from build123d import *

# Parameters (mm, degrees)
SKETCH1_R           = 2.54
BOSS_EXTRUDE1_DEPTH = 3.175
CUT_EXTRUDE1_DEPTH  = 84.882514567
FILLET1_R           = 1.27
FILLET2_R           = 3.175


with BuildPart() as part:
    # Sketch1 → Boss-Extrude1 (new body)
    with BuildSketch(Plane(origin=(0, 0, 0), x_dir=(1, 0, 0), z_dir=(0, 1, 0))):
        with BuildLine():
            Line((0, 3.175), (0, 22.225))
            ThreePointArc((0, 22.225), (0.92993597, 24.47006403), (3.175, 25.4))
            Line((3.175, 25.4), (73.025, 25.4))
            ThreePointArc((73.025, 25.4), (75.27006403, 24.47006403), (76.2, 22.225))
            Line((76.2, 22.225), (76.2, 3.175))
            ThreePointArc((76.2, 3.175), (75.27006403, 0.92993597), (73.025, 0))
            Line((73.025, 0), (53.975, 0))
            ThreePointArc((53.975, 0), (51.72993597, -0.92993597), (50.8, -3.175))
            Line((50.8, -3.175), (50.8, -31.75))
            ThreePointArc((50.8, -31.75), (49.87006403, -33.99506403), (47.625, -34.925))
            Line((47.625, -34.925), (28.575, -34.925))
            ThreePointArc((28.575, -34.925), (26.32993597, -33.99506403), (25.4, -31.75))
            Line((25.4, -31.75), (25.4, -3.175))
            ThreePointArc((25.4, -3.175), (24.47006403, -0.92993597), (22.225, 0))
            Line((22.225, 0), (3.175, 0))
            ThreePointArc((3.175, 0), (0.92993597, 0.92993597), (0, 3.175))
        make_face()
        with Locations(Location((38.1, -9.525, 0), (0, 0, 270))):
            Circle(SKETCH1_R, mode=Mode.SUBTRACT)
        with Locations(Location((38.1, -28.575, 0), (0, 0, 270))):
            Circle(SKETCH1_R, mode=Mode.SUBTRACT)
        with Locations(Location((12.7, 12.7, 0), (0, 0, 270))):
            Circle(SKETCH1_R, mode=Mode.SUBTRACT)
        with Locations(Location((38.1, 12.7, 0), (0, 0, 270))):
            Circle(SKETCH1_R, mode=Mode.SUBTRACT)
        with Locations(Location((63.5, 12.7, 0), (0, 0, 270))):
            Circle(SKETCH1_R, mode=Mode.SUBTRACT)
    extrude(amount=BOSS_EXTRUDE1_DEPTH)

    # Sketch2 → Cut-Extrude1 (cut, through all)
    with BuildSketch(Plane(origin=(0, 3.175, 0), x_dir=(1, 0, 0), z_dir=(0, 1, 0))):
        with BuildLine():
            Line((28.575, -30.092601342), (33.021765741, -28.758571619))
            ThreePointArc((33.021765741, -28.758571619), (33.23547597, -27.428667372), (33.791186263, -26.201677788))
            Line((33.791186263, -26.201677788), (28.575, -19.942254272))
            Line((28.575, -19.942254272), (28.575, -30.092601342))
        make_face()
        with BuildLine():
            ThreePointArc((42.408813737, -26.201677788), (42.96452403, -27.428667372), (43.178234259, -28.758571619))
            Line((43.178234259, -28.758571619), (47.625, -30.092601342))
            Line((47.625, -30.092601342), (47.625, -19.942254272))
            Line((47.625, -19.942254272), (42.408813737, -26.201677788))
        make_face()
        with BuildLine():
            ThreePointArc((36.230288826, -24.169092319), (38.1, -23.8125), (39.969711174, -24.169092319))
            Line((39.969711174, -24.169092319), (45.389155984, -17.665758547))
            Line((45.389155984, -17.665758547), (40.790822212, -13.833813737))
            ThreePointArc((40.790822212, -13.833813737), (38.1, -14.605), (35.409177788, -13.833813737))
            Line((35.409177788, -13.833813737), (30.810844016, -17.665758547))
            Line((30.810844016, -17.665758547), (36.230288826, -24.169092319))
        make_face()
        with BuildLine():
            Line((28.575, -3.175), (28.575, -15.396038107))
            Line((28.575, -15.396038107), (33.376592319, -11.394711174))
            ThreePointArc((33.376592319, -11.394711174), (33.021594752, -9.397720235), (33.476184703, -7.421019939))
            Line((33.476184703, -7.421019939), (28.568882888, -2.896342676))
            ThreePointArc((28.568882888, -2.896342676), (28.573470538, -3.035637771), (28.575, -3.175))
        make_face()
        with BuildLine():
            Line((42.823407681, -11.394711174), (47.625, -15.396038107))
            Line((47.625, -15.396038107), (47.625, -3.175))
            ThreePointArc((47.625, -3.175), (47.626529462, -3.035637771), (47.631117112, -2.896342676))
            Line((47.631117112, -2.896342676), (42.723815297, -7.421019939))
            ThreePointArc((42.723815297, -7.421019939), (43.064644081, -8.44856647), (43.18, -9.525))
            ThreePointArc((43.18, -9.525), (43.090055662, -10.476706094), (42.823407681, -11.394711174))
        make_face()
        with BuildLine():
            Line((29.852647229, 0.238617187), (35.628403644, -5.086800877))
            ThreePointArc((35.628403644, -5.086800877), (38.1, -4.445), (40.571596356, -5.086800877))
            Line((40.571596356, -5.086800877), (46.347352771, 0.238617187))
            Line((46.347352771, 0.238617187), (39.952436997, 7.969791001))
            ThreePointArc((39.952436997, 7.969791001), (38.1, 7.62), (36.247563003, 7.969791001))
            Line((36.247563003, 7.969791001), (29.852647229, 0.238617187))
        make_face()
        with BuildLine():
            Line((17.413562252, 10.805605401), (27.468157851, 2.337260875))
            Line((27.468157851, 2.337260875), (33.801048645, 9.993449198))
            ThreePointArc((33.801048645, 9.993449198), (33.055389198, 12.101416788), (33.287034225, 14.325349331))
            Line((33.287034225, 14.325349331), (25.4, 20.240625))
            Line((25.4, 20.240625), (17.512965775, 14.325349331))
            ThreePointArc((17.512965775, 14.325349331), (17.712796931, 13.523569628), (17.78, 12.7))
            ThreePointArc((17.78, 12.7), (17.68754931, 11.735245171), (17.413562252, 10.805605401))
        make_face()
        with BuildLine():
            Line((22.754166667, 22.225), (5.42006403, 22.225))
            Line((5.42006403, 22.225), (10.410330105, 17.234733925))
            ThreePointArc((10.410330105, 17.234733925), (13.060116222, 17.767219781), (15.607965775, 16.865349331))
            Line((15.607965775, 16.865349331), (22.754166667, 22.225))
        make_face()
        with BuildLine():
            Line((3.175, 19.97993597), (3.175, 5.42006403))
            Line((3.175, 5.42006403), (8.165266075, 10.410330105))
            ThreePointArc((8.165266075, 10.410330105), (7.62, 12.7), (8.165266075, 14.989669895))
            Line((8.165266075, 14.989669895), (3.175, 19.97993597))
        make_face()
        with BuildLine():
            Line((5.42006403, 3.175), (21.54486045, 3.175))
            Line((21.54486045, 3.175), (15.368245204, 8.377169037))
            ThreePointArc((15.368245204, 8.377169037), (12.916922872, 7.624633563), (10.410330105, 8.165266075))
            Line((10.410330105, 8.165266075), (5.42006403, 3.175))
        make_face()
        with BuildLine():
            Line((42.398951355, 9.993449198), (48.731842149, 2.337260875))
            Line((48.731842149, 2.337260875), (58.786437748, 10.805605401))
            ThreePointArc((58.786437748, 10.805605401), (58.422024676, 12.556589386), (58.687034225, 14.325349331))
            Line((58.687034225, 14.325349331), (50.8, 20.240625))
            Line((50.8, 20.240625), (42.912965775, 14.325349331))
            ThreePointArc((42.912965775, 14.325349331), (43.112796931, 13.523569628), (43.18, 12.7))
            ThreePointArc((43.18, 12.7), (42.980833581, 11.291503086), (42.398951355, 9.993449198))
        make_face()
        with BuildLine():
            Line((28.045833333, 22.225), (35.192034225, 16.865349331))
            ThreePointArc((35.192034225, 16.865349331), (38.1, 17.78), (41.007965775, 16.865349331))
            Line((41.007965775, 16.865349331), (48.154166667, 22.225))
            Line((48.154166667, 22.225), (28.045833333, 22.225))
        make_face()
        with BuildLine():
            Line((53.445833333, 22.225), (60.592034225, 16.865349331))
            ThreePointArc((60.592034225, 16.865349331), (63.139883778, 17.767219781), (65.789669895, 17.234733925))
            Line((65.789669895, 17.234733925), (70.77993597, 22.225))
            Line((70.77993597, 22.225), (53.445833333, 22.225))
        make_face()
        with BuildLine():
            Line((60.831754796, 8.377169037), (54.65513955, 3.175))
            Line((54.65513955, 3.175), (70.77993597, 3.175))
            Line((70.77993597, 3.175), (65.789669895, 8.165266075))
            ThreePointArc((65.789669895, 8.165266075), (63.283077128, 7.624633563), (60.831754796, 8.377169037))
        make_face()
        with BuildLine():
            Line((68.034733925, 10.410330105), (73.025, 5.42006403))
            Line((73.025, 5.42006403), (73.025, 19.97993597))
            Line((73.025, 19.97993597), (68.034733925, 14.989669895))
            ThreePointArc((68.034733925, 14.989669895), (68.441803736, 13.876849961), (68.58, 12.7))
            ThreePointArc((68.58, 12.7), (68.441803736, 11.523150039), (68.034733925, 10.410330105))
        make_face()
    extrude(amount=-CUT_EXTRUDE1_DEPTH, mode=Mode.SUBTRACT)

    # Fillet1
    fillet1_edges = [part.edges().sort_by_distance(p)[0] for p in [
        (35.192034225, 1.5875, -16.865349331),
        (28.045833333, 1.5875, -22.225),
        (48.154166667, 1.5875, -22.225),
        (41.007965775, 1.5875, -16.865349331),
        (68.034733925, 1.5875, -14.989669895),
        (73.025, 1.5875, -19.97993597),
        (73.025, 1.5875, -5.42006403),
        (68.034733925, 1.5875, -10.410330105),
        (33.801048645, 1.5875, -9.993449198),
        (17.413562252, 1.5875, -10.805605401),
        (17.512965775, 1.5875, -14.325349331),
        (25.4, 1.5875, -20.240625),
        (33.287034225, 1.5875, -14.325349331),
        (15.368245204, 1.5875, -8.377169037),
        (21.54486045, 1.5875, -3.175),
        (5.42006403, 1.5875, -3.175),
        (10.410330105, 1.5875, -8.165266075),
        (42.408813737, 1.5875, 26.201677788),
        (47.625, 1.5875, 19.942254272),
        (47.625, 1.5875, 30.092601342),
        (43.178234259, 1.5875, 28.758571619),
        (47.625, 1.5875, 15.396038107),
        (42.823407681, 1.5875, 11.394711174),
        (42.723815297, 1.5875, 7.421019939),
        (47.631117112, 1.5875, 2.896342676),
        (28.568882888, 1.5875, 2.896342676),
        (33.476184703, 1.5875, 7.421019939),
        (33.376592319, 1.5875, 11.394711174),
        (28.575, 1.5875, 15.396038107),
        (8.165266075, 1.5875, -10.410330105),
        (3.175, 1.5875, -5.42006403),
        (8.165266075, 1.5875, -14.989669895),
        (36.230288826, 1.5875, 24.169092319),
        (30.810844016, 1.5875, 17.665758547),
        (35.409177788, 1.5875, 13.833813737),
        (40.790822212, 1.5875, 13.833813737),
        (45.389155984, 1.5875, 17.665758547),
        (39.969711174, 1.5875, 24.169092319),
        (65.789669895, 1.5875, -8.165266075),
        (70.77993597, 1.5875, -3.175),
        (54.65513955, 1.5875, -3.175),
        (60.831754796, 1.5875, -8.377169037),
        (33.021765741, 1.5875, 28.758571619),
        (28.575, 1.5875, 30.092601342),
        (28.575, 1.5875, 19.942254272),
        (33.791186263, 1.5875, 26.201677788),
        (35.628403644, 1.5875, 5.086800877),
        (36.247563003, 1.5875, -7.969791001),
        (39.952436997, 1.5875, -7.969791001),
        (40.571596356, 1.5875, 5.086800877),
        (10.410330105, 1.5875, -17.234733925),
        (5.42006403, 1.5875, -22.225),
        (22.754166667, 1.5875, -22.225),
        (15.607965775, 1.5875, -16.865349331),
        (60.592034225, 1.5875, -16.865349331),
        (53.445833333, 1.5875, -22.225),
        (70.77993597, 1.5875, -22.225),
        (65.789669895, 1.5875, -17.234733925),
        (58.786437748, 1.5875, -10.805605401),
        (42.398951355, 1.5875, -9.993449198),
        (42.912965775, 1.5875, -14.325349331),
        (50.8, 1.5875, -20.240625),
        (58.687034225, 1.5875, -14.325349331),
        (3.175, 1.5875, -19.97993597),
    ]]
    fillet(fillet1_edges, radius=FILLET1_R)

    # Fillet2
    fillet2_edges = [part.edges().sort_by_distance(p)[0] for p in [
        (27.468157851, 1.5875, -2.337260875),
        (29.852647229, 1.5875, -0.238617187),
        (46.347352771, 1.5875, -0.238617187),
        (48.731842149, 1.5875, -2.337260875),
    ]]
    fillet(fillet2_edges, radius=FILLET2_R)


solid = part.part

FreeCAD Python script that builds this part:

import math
import FreeCAD as App
import Part
import Sketcher
Q = App.Units.Quantity


def edges_at(feature, points):
    """Names of the edges that pass closest to the given points."""
    edges = feature.Shape.Edges
    near = lambda p: min(range(len(edges)), key=lambda i: edges[i].distToShape(Part.Vertex(*p))[0])
    return sorted({f"Edge{near(p) + 1}" for p in points})

doc = App.newDocument("Part")
body = doc.addObject("PartDesign::Body", "Body")

# Sketch on XZ plane
sketch1 = body.newObject("Sketcher::SketchObject", "Sketch")
sketch1.AttachmentSupport = (doc.getObject("XZ_Plane"), [""])
sketch1.MapMode = "FlatFace"
sketch1.addGeometry([
    Part.LineSegment(App.Vector(0, -22.2, 0), App.Vector(0, -3.2, 0)),  # 0
    Part.ArcOfCircle(Part.Circle(App.Vector(3.2, -3.2, 0), App.Vector(0, 0, 1), 3.2), math.radians(90), math.radians(180)),  # 1
    Part.LineSegment(App.Vector(3.2, 0, 0), App.Vector(22.2, 0, 0)),  # 2
    Part.ArcOfCircle(Part.Circle(App.Vector(22.2, 3.2, 0), App.Vector(0, 0, 1), 3.2), math.radians(-90), math.radians(0)),  # 3
    Part.LineSegment(App.Vector(25.4, 3.2, 0), App.Vector(25.4, 31.8, 0)),  # 4
    Part.ArcOfCircle(Part.Circle(App.Vector(28.6, 31.7, 0), App.Vector(0, 0, 1), 3.2), math.radians(90), math.radians(180)),  # 5
    Part.LineSegment(App.Vector(28.6, 34.9, 0), App.Vector(47.6, 34.9, 0)),  # 6
    Part.ArcOfCircle(Part.Circle(App.Vector(47.6, 31.7, 0), App.Vector(0, 0, 1), 3.2), math.radians(0), math.radians(90)),  # 7
    Part.LineSegment(App.Vector(50.8, 31.8, 0), App.Vector(50.8, 3.2, 0)),  # 8
    Part.ArcOfCircle(Part.Circle(App.Vector(54, 3.2, 0), App.Vector(0, 0, 1), 3.2), math.radians(-180), math.radians(-90)),  # 9
    Part.LineSegment(App.Vector(54, 0, 0), App.Vector(73, 0, 0)),  # 10
    Part.ArcOfCircle(Part.Circle(App.Vector(73, -3.2, 0), App.Vector(0, 0, 1), 3.2), math.radians(0), math.radians(90)),  # 11
    Part.LineSegment(App.Vector(76.2, -3.2, 0), App.Vector(76.2, -22.2, 0)),  # 12
    Part.ArcOfCircle(Part.Circle(App.Vector(73, -22.2, 0), App.Vector(0, 0, 1), 3.2), math.radians(-90), math.radians(0)),  # 13
    Part.LineSegment(App.Vector(73, -25.4, 0), App.Vector(3.2, -25.4, 0)),  # 14
    Part.ArcOfCircle(Part.Circle(App.Vector(3.2, -22.2, 0), App.Vector(0, 0, 1), 3.2), math.radians(-180), math.radians(-90)),  # 15
    Part.Circle(App.Vector(38.1, 28.6, 0), App.Vector(0, 0, 1), 2.5),  # 16
    Part.Circle(App.Vector(38.1, 9.5, 0), App.Vector(0, 0, 1), 2.5),  # 17
    Part.Circle(App.Vector(63.5, -12.7, 0), App.Vector(0, 0, 1), 2.5),  # 18
    Part.Circle(App.Vector(38.1, -12.7, 0), App.Vector(0, 0, 1), 2.5),  # 19
    Part.Circle(App.Vector(12.7, -12.7, 0), App.Vector(0, 0, 1), 2.5),  # 20
], False)
sketch1.addConstraint([
    Sketcher.Constraint("Tangent", 0, 2, 1, 2),
    Sketcher.Constraint("Tangent", 1, 1, 2, 1),
    Sketcher.Constraint("Tangent", 2, 2, 3, 1),
    Sketcher.Constraint("Tangent", 3, 2, 4, 1),
    Sketcher.Constraint("Tangent", 4, 2, 5, 2),
    Sketcher.Constraint("Tangent", 5, 1, 6, 1),
    Sketcher.Constraint("Tangent", 6, 2, 7, 2),
    Sketcher.Constraint("Tangent", 7, 1, 8, 1),
    Sketcher.Constraint("Tangent", 8, 2, 9, 1),
    Sketcher.Constraint("Tangent", 9, 2, 10, 1),
    Sketcher.Constraint("Tangent", 10, 2, 11, 2),
    Sketcher.Constraint("Tangent", 11, 1, 12, 1),
    Sketcher.Constraint("Tangent", 12, 2, 13, 2),
    Sketcher.Constraint("Tangent", 13, 1, 14, 1),
    Sketcher.Constraint("Tangent", 14, 2, 15, 2),
    Sketcher.Constraint("Tangent", 15, 1, 0, 1),
    Sketcher.Constraint("Vertical", 0),
    Sketcher.Constraint("Horizontal", 2),
    Sketcher.Constraint("Vertical", 4),
    Sketcher.Constraint("Horizontal", 6),
    Sketcher.Constraint("Vertical", 8),
    Sketcher.Constraint("Horizontal", 10),
    Sketcher.Constraint("Vertical", 12),
    Sketcher.Constraint("Horizontal", 14),
    Sketcher.Constraint("Equal", 1, 3),
    Sketcher.Constraint("Equal", 3, 5),
    Sketcher.Constraint("Equal", 5, 7),
    Sketcher.Constraint("Equal", 7, 9),
    Sketcher.Constraint("Equal", 9, 11),
    Sketcher.Constraint("Equal", 11, 13),
    Sketcher.Constraint("Equal", 13, 15),
    Sketcher.Constraint("Equal", 16, 17),
    Sketcher.Constraint("Equal", 17, 18),
    Sketcher.Constraint("Equal", 18, 19),
    Sketcher.Constraint("Equal", 19, 20),
    Sketcher.Constraint("PointOnObject", 0, 2, -2),
    Sketcher.Constraint("PointOnObject", 1, 1, -1),
    Sketcher.Constraint("PointOnObject", 9, 2, -1),
    Sketcher.Constraint("Horizontal", 18, 3, 19, 3),
    Sketcher.Constraint("Horizontal", 19, 3, 20, 3),
    Sketcher.Constraint("Vertical", 16, 3, 17, 3),
    Sketcher.Constraint("Vertical", 17, 3, 19, 3),
    Sketcher.Constraint("Equal", 2, 6),
    Sketcher.Constraint("Equal", 6, 10),
    Sketcher.Constraint("Equal", 10, 0),
    Sketcher.Constraint("Diameter", 16, Q("0.2 in")),
    Sketcher.Constraint("DistanceX", -1, 1, 3, 2, Q("1 in")),
    Sketcher.Constraint("Radius", 1, Q("0.125 in")),
    Sketcher.Constraint("DistanceY", 9, 3, 16, 3, Q("1 in")),
    Sketcher.Constraint("DistanceX", 17, 3, 18, 3, Q("1 in")),
    Sketcher.Constraint("DistanceX", 20, 3, 19, 3, Q("1 in")),
    Sketcher.Constraint("DistanceY", 17, 3, 5, 1, Q("1 in")),
    Sketcher.Constraint("DistanceX", -1, 1, 16, 3, Q("1.5 in")),
    Sketcher.Constraint("DistanceY", 18, 3, -1, 1, Q("0.5 in")),
    Sketcher.Constraint("DistanceY", 4, 1, 4, 2, Q("1.125 in")),
])
pad1 = body.newObject("PartDesign::Pad", "Pad")
pad1.Profile = sketch1
pad1.Length = Q("0.125 in")
pad1.Reversed = True

# Sketch on XZ plane
sketch2 = body.newObject("Sketcher::SketchObject", "Sketch001")
sketch2.AttachmentSupport = (doc.getObject("XZ_Plane"), [""])
sketch2.MapMode = "FlatFace"
sketch2.AttachmentOffset = App.Placement(App.Vector(0, 0, -0.125 * 25.4), App.Rotation())
sketch2.addGeometry([
    Part.LineSegment(App.Vector(28.57, 30.09, 0), App.Vector(33.02, 28.76, 0)),  # 0
    Part.ArcOfCircle(Part.Circle(App.Vector(38.1, 28.89, 0), App.Vector(0, 0, 1), 5.08), math.radians(-178), math.radians(-148)),  # 1
    Part.LineSegment(App.Vector(33.79, 26.2, 0), App.Vector(28.57, 19.94, 0)),  # 2
    Part.LineSegment(App.Vector(28.57, 19.94, 0), App.Vector(28.57, 30.09, 0)),  # 3
    Part.ArcOfCircle(Part.Circle(App.Vector(38.1, 28.89, 0), App.Vector(0, 0, 1), 5.08), math.radians(-32), math.radians(-2)),  # 4
    Part.LineSegment(App.Vector(43.18, 28.76, 0), App.Vector(47.62, 30.09, 0)),  # 5
    Part.LineSegment(App.Vector(47.62, 30.09, 0), App.Vector(47.62, 19.94, 0)),  # 6
    Part.LineSegment(App.Vector(47.62, 19.94, 0), App.Vector(42.41, 26.2, 0)),  # 7
    Part.ArcOfCircle(Part.Circle(App.Vector(38.1, 28.89, 0), App.Vector(0, 0, 1), 5.08), math.radians(-112), math.radians(-68)),  # 8
    Part.LineSegment(App.Vector(39.97, 24.17, 0), App.Vector(45.39, 17.67, 0)),  # 9
    Part.LineSegment(App.Vector(45.39, 17.67, 0), App.Vector(40.79, 13.83, 0)),  # 10
    Part.ArcOfCircle(Part.Circle(App.Vector(38.1, 9.53, 0), App.Vector(0, 0, 1), 5.08), math.radians(58), math.radians(122)),  # 11
    Part.LineSegment(App.Vector(35.41, 13.83, 0), App.Vector(30.81, 17.67, 0)),  # 12
    Part.LineSegment(App.Vector(30.81, 17.67, 0), App.Vector(36.23, 24.17, 0)),  # 13
    Part.LineSegment(App.Vector(28.57, 3.17, 0), App.Vector(28.57, 15.4, 0)),  # 14
    Part.LineSegment(App.Vector(28.57, 15.4, 0), App.Vector(33.38, 11.39, 0)),  # 15
    Part.ArcOfCircle(Part.Circle(App.Vector(38.1, 9.52, 0), App.Vector(0, 0, 1), 5.08), math.radians(158), math.radians(204)),  # 16
    Part.LineSegment(App.Vector(33.48, 7.42, 0), App.Vector(28.57, 2.9, 0)),  # 17
    Part.ArcOfCircle(Part.Circle(App.Vector(22.23, 3.17, 0), App.Vector(0, 0, 1), 6.35), math.radians(-2.52), math.radians(0)),  # 18
    Part.LineSegment(App.Vector(42.82, 11.39, 0), App.Vector(47.62, 15.4, 0)),  # 19
    Part.LineSegment(App.Vector(47.62, 15.4, 0), App.Vector(47.62, 3.17, 0)),  # 20
    Part.ArcOfCircle(Part.Circle(App.Vector(53.97, 3.17, 0), App.Vector(0, 0, 1), 6.35), math.radians(180), math.radians(182.52)),  # 21
    Part.LineSegment(App.Vector(47.63, 2.9, 0), App.Vector(42.72, 7.42, 0)),  # 22
    Part.ArcOfCircle(Part.Circle(App.Vector(38.1, 9.53, 0), App.Vector(0, 0, 1), 5.08), math.radians(-24), math.radians(0)),  # 23
    Part.ArcOfCircle(Part.Circle(App.Vector(38.1, 9.53, 0), App.Vector(0, 0, 1), 5.08), math.radians(0), math.radians(22)),  # 24
    Part.LineSegment(App.Vector(29.85, -0.24, 0), App.Vector(35.63, 5.09, 0)),  # 25
    Part.ArcOfCircle(Part.Circle(App.Vector(38.1, 9.53, 0), App.Vector(0, 0, 1), 5.08), math.radians(-119), math.radians(-61)),  # 26
    Part.LineSegment(App.Vector(40.57, 5.09, 0), App.Vector(46.35, -0.24, 0)),  # 27
    Part.LineSegment(App.Vector(46.35, -0.24, 0), App.Vector(39.95, -7.97, 0)),  # 28
    Part.ArcOfCircle(Part.Circle(App.Vector(38.1, -12.7, 0), App.Vector(0, 0, 1), 5.08), math.radians(69), math.radians(111)),  # 29
    Part.LineSegment(App.Vector(36.25, -7.97, 0), App.Vector(29.85, -0.24, 0)),  # 30
    Part.LineSegment(App.Vector(17.41, -10.81, 0), App.Vector(27.47, -2.34, 0)),  # 31
    Part.LineSegment(App.Vector(27.47, -2.34, 0), App.Vector(33.8, -9.99, 0)),  # 32
    Part.ArcOfCircle(Part.Circle(App.Vector(38.1, -12.7, 0), App.Vector(0, 0, 1), 5.08), math.radians(148), math.radians(199)),  # 33
    Part.LineSegment(App.Vector(33.29, -14.33, 0), App.Vector(25.4, -20.24, 0)),  # 34
    Part.LineSegment(App.Vector(25.4, -20.24, 0), App.Vector(17.51, -14.33, 0)),  # 35
    Part.ArcOfCircle(Part.Circle(App.Vector(12.7, -12.7, 0), App.Vector(0, 0, 1), 5.08), math.radians(-18.66), math.radians(0)),  # 36
    Part.ArcOfCircle(Part.Circle(App.Vector(12.7, -12.7, 0), App.Vector(0, 0, 1), 5.08), math.radians(0), math.radians(22)),  # 37
    Part.LineSegment(App.Vector(22.75, -22.23, 0), App.Vector(5.42, -22.23, 0)),  # 38
    Part.LineSegment(App.Vector(5.42, -22.23, 0), App.Vector(10.41, -17.23, 0)),  # 39
    Part.ArcOfCircle(Part.Circle(App.Vector(12.7, -12.7, 0), App.Vector(0, 0, 1), 5.08), math.radians(-117), math.radians(-55)),  # 40
    Part.LineSegment(App.Vector(15.61, -16.87, 0), App.Vector(22.75, -22.23, 0)),  # 41
    Part.LineSegment(App.Vector(3.17, -19.98, 0), App.Vector(3.17, -5.42, 0)),  # 42
    Part.LineSegment(App.Vector(3.17, -5.42, 0), App.Vector(8.17, -10.41, 0)),  # 43
    Part.ArcOfCircle(Part.Circle(App.Vector(12.7, -12.7, 0), App.Vector(0, 0, 1), 5.08), math.radians(153), math.radians(207)),  # 44
    Part.LineSegment(App.Vector(8.17, -14.99, 0), App.Vector(3.17, -19.98, 0)),  # 45
    Part.LineSegment(App.Vector(5.42, -3.17, 0), App.Vector(21.54, -3.17, 0)),  # 46
    Part.LineSegment(App.Vector(21.54, -3.17, 0), App.Vector(15.37, -8.38, 0)),  # 47
    Part.ArcOfCircle(Part.Circle(App.Vector(12.7, -12.7, 0), App.Vector(0, 0, 1), 5.08), math.radians(58), math.radians(117)),  # 48
    Part.LineSegment(App.Vector(10.41, -8.17, 0), App.Vector(5.42, -3.17, 0)),  # 49
    Part.LineSegment(App.Vector(42.4, -9.99, 0), App.Vector(48.73, -2.34, 0)),  # 50
    Part.LineSegment(App.Vector(48.73, -2.34, 0), App.Vector(58.79, -10.81, 0)),  # 51
    Part.ArcOfCircle(Part.Circle(App.Vector(63.5, -12.7, 0), App.Vector(0, 0, 1), 5.08), math.radians(158), math.radians(199)),  # 52
    Part.LineSegment(App.Vector(58.69, -14.33, 0), App.Vector(50.8, -20.24, 0)),  # 53
    Part.LineSegment(App.Vector(50.8, -20.24, 0), App.Vector(42.91, -14.33, 0)),  # 54
    Part.ArcOfCircle(Part.Circle(App.Vector(38.1, -12.7, 0), App.Vector(0, 0, 1), 5.08), math.radians(-18.66), math.radians(0)),  # 55
    Part.ArcOfCircle(Part.Circle(App.Vector(38.1, -12.7, 0), App.Vector(0, 0, 1), 5.08), math.radians(0), math.radians(32)),  # 56
    Part.LineSegment(App.Vector(28.05, -22.23, 0), App.Vector(35.19, -16.87, 0)),  # 57
    Part.ArcOfCircle(Part.Circle(App.Vector(38.1, -12.7, 0), App.Vector(0, 0, 1), 5.08), math.radians(-125), math.radians(-55)),  # 58
    Part.LineSegment(App.Vector(41.01, -16.87, 0), App.Vector(48.15, -22.23, 0)),  # 59
    Part.LineSegment(App.Vector(48.15, -22.23, 0), App.Vector(28.05, -22.23, 0)),  # 60
    Part.LineSegment(App.Vector(53.45, -22.23, 0), App.Vector(60.59, -16.87, 0)),  # 61
    Part.ArcOfCircle(Part.Circle(App.Vector(63.5, -12.7, 0), App.Vector(0, 0, 1), 5.08), math.radians(-125), math.radians(-63)),  # 62
    Part.LineSegment(App.Vector(65.79, -17.23, 0), App.Vector(70.78, -22.23, 0)),  # 63
    Part.LineSegment(App.Vector(70.78, -22.23, 0), App.Vector(53.45, -22.23, 0)),  # 64
    Part.LineSegment(App.Vector(60.83, -8.38, 0), App.Vector(54.66, -3.17, 0)),  # 65
    Part.LineSegment(App.Vector(54.66, -3.17, 0), App.Vector(70.78, -3.17, 0)),  # 66
    Part.LineSegment(App.Vector(70.78, -3.17, 0), App.Vector(65.79, -8.17, 0)),  # 67
    Part.ArcOfCircle(Part.Circle(App.Vector(63.5, -12.7, 0), App.Vector(0, 0, 1), 5.08), math.radians(63), math.radians(122)),  # 68
    Part.LineSegment(App.Vector(68.03, -10.41, 0), App.Vector(73.03, -5.42, 0)),  # 69
    Part.LineSegment(App.Vector(73.03, -5.42, 0), App.Vector(73.03, -19.98, 0)),  # 70
    Part.LineSegment(App.Vector(73.03, -19.98, 0), App.Vector(68.03, -14.99, 0)),  # 71
    Part.ArcOfCircle(Part.Circle(App.Vector(63.5, -12.7, 0), App.Vector(0, 0, 1), 5.08), math.radians(-27), math.radians(0)),  # 72
    Part.ArcOfCircle(Part.Circle(App.Vector(63.5, -12.7, 0), App.Vector(0, 0, 1), 5.08), math.radians(0), math.radians(27)),  # 73
], False)
sketch2.addConstraint([
    Sketcher.Constraint("Coincident", 0, 2, 1, 1),
    Sketcher.Constraint("Coincident", 1, 2, 2, 1),
    Sketcher.Constraint("Coincident", 2, 2, 3, 1),
    Sketcher.Constraint("Coincident", 3, 2, 0, 1),
    Sketcher.Constraint("Coincident", 4, 2, 5, 1),
    Sketcher.Constraint("Coincident", 5, 2, 6, 1),
    Sketcher.Constraint("Coincident", 6, 2, 7, 1),
    Sketcher.Constraint("Coincident", 7, 2, 4, 1),
    Sketcher.Constraint("Coincident", 8, 2, 9, 1),
    Sketcher.Constraint("Coincident", 9, 2, 10, 1),
    Sketcher.Constraint("Coincident", 10, 2, 11, 1),
    Sketcher.Constraint("Coincident", 11, 2, 12, 1),
    Sketcher.Constraint("Coincident", 12, 2, 13, 1),
    Sketcher.Constraint("Coincident", 13, 2, 8, 1),
    Sketcher.Constraint("Coincident", 14, 2, 15, 1),
    Sketcher.Constraint("Coincident", 15, 2, 16, 1),
    Sketcher.Constraint("Coincident", 16, 2, 17, 1),
    Sketcher.Constraint("Coincident", 17, 2, 18, 1),
    Sketcher.Constraint("Tangent", 18, 2, 14, 1),
    Sketcher.Constraint("Coincident", 19, 2, 20, 1),
    Sketcher.Constraint("Tangent", 20, 2, 21, 1),
    Sketcher.Constraint("Coincident", 21, 2, 22, 1),
    Sketcher.Constraint("Coincident", 22, 2, 23, 1),
    Sketcher.Constraint("Tangent", 23, 2, 24, 1),
    Sketcher.Constraint("Coincident", 24, 2, 19, 1),
    Sketcher.Constraint("Coincident", 25, 2, 26, 1),
    Sketcher.Constraint("Coincident", 26, 2, 27, 1),
    Sketcher.Constraint("Coincident", 27, 2, 28, 1),
    Sketcher.Constraint("Coincident", 28, 2, 29, 1),
    Sketcher.Constraint("Coincident", 29, 2, 30, 1),
    Sketcher.Constraint("Coincident", 30, 2, 25, 1),
    Sketcher.Constraint("Coincident", 31, 2, 32, 1),
    Sketcher.Constraint("Coincident", 32, 2, 33, 1),
    Sketcher.Constraint("Coincident", 33, 2, 34, 1),
    Sketcher.Constraint("Coincident", 34, 2, 35, 1),
    Sketcher.Constraint("Coincident", 35, 2, 36, 1),
    Sketcher.Constraint("Tangent", 36, 2, 37, 1),
    Sketcher.Constraint("Coincident", 37, 2, 31, 1),
    Sketcher.Constraint("Coincident", 38, 2, 39, 1),
    Sketcher.Constraint("Coincident", 39, 2, 40, 1),
    Sketcher.Constraint("Coincident", 40, 2, 41, 1),
    Sketcher.Constraint("Coincident", 41, 2, 38, 1),
    Sketcher.Constraint("Coincident", 42, 2, 43, 1),
    Sketcher.Constraint("Coincident", 43, 2, 44, 1),
    Sketcher.Constraint("Coincident", 44, 2, 45, 1),
    Sketcher.Constraint("Coincident", 45, 2, 42, 1),
    Sketcher.Constraint("Coincident", 46, 2, 47, 1),
    Sketcher.Constraint("Coincident", 47, 2, 48, 1),
    Sketcher.Constraint("Coincident", 48, 2, 49, 1),
    Sketcher.Constraint("Coincident", 49, 2, 46, 1),
    Sketcher.Constraint("Coincident", 50, 2, 51, 1),
    Sketcher.Constraint("Coincident", 51, 2, 52, 1),
    Sketcher.Constraint("Coincident", 52, 2, 53, 1),
    Sketcher.Constraint("Coincident", 53, 2, 54, 1),
    Sketcher.Constraint("Coincident", 54, 2, 55, 1),
    Sketcher.Constraint("Tangent", 55, 2, 56, 1),
    Sketcher.Constraint("Coincident", 56, 2, 50, 1),
    Sketcher.Constraint("Coincident", 57, 2, 58, 1),
    Sketcher.Constraint("Coincident", 58, 2, 59, 1),
    Sketcher.Constraint("Coincident", 59, 2, 60, 1),
    Sketcher.Constraint("Coincident", 60, 2, 57, 1),
    Sketcher.Constraint("Coincident", 61, 2, 62, 1),
    Sketcher.Constraint("Coincident", 62, 2, 63, 1),
    Sketcher.Constraint("Coincident", 63, 2, 64, 1),
    Sketcher.Constraint("Coincident", 64, 2, 61, 1),
    Sketcher.Constraint("Coincident", 65, 2, 66, 1),
    Sketcher.Constraint("Coincident", 66, 2, 67, 1),
    Sketcher.Constraint("Coincident", 67, 2, 68, 1),
    Sketcher.Constraint("Coincident", 68, 2, 65, 1),
    Sketcher.Constraint("Coincident", 69, 2, 70, 1),
    Sketcher.Constraint("Coincident", 70, 2, 71, 1),
    Sketcher.Constraint("Coincident", 71, 2, 72, 1),
    Sketcher.Constraint("Tangent", 72, 2, 73, 1),
    Sketcher.Constraint("Coincident", 73, 2, 69, 1),
    Sketcher.Constraint("Vertical", 3),
    Sketcher.Constraint("Vertical", 6),
    Sketcher.Constraint("Vertical", 14),
    Sketcher.Constraint("Vertical", 20),
    Sketcher.Constraint("Horizontal", 38),
    Sketcher.Constraint("Vertical", 42),
    Sketcher.Constraint("Horizontal", 46),
    Sketcher.Constraint("Horizontal", 60),
    Sketcher.Constraint("Horizontal", 64),
    Sketcher.Constraint("Horizontal", 66),
    Sketcher.Constraint("Vertical", 70),
    Sketcher.Constraint("Coincident", 4, 3, 1, 3),
    Sketcher.Constraint("Coincident", 8, 3, 1, 3),
    Sketcher.Constraint("Coincident", 16, 3, 11, 3),
    Sketcher.Constraint("Coincident", 23, 3, 11, 3),
    Sketcher.Constraint("Coincident", 26, 3, 11, 3),
    Sketcher.Constraint("Coincident", 33, 3, 29, 3),
    Sketcher.Constraint("Coincident", 40, 3, 36, 3),
    Sketcher.Constraint("Coincident", 44, 3, 36, 3),
    Sketcher.Constraint("Coincident", 48, 3, 36, 3),
    Sketcher.Constraint("Coincident", 55, 3, 29, 3),
    Sketcher.Constraint("Coincident", 58, 3, 29, 3),
    Sketcher.Constraint("Coincident", 62, 3, 52, 3),
    Sketcher.Constraint("Coincident", 68, 3, 52, 3),
    Sketcher.Constraint("Coincident", 72, 3, 52, 3),
    Sketcher.Constraint("Equal", 1, 4),
    Sketcher.Constraint("Equal", 4, 8),
    Sketcher.Constraint("Equal", 8, 11),
    Sketcher.Constraint("Equal", 11, 16),
    Sketcher.Constraint("Equal", 18, 21),
    Sketcher.Constraint("Equal", 16, 23),
    Sketcher.Constraint("Equal", 23, 24),
    Sketcher.Constraint("Equal", 24, 26),
    Sketcher.Constraint("Equal", 26, 29),
    Sketcher.Constraint("Equal", 29, 33),
    Sketcher.Constraint("Equal", 33, 36),
    Sketcher.Constraint("Equal", 36, 37),
    Sketcher.Constraint("Equal", 37, 40),
    Sketcher.Constraint("Equal", 40, 44),
    Sketcher.Constraint("Equal", 44, 48),
    Sketcher.Constraint("Equal", 48, 52),
    Sketcher.Constraint("Equal", 52, 55),
    Sketcher.Constraint("Equal", 55, 56),
    Sketcher.Constraint("Equal", 56, 58),
    Sketcher.Constraint("Equal", 58, 62),
    Sketcher.Constraint("Equal", 62, 68),
    Sketcher.Constraint("Equal", 68, 72),
    Sketcher.Constraint("Equal", 72, 73),
    Sketcher.Constraint("Parallel", 7, 9),
    Sketcher.Constraint("Perpendicular", 9, 10),
    Sketcher.Constraint("Perpendicular", 2, 12),
    Sketcher.Constraint("Perpendicular", 12, 13),
    Sketcher.Constraint("Perpendicular", 13, 15),
    Sketcher.Constraint("Parallel", 10, 19),
    Sketcher.Constraint("Parallel", 17, 25),
    Sketcher.Constraint("Parallel", 22, 27),
    Sketcher.Constraint("Parallel", 30, 32),
    Sketcher.Constraint("Parallel", 35, 41),
    Sketcher.Constraint("Perpendicular", 39, 43),
    Sketcher.Constraint("Perpendicular", 43, 45),
    Sketcher.Constraint("Parallel", 31, 47),
    Sketcher.Constraint("Perpendicular", 45, 49),
    Sketcher.Constraint("Parallel", 28, 50),
    Sketcher.Constraint("Parallel", 34, 53),
    Sketcher.Constraint("Parallel", 41, 54),
    Sketcher.Constraint("Parallel", 53, 57),
    Sketcher.Constraint("Parallel", 54, 59),
    Sketcher.Constraint("Parallel", 57, 61),
    Sketcher.Constraint("Parallel", 49, 63),
    Sketcher.Constraint("Parallel", 51, 65),
    Sketcher.Constraint("Perpendicular", 63, 67),
    Sketcher.Constraint("Parallel", 67, 69),
    Sketcher.Constraint("Perpendicular", 69, 71),
    Sketcher.Constraint("Horizontal", 18, 3, 21, 3),
    Sketcher.Constraint("Horizontal", 33, 3, 36, 3),
    Sketcher.Constraint("Horizontal", 48, 3, 52, 3),
    Sketcher.Constraint("Horizontal", 0, 2, 4, 2),
    Sketcher.Constraint("Horizontal", 3, 2, 5, 2),
    Sketcher.Constraint("Horizontal", 2, 2, 6, 2),
    Sketcher.Constraint("Horizontal", 1, 2, 7, 2),
    Sketcher.Constraint("Horizontal", 10, 2, 11, 2),
    Sketcher.Constraint("Horizontal", 9, 2, 12, 2),
    Sketcher.Constraint("Horizontal", 8, 2, 13, 2),
    Sketcher.Constraint("Horizontal", 14, 2, 19, 2),
    Sketcher.Constraint("Horizontal", 17, 2, 21, 2),
    Sketcher.Constraint("Horizontal", 16, 2, 22, 2),
    Sketcher.Constraint("Horizontal", 26, 3, 23, 2),
    Sketcher.Constraint("Horizontal", 15, 2, 24, 2),
    Sketcher.Constraint("Horizontal", 25, 2, 26, 2),
    Sketcher.Constraint("Horizontal", 28, 2, 29, 2),
    Sketcher.Constraint("Horizontal", 27, 2, 30, 2),
    Sketcher.Constraint("Horizontal", 33, 2, 35, 2),
    Sketcher.Constraint("Horizontal", 73, 3, 36, 2),
    Sketcher.Constraint("Horizontal", 31, 2, 50, 2),
    Sketcher.Constraint("Horizontal", 37, 2, 51, 2),
    Sketcher.Constraint("Horizontal", 35, 2, 52, 2),
    Sketcher.Constraint("Horizontal", 34, 2, 53, 2),
    Sketcher.Constraint("Horizontal", 52, 2, 54, 2),
    Sketcher.Constraint("Horizontal", 36, 2, 55, 2),
    Sketcher.Constraint("Horizontal", 32, 2, 56, 2),
    Sketcher.Constraint("Horizontal", 40, 2, 57, 2),
    Sketcher.Constraint("Horizontal", 57, 2, 58, 2),
    Sketcher.Constraint("Horizontal", 41, 2, 59, 2),
    Sketcher.Constraint("Horizontal", 58, 2, 61, 2),
    Sketcher.Constraint("Horizontal", 39, 2, 62, 2),
    Sketcher.Constraint("Horizontal", 60, 2, 63, 2),
    Sketcher.Constraint("Horizontal", 49, 2, 65, 2),
    Sketcher.Constraint("Horizontal", 48, 2, 67, 2),
    Sketcher.Constraint("Horizontal", 47, 2, 68, 2),
    Sketcher.Constraint("Horizontal", 42, 2, 69, 2),
    Sketcher.Constraint("Horizontal", 45, 2, 70, 2),
    Sketcher.Constraint("Horizontal", 44, 2, 71, 2),
    Sketcher.Constraint("Horizontal", 55, 2, 72, 2),
    Sketcher.Constraint("Horizontal", 43, 2, 73, 2),
    Sketcher.Constraint("Vertical", 8, 3, 11, 3),
    Sketcher.Constraint("Vertical", 26, 3, 29, 3),
    Sketcher.Constraint("Vertical", 3, 2, 14, 2),
    Sketcher.Constraint("Vertical", 43, 2, 44, 2),
    Sketcher.Constraint("Vertical", 39, 2, 48, 2),
    Sketcher.Constraint("Vertical", 38, 2, 49, 2),
    Sketcher.Constraint("Equal", 38, 64),
    Sketcher.Constraint("Equal", 39, 43),
    Sketcher.Constraint("Radius", 1, Q("0.2 in")),
    Sketcher.Constraint("Radius", 18, Q("0.25 in")),
    Sketcher.Constraint("DistanceX", -1, 1, 34, 2, Q("1 in")),
    Sketcher.Constraint("DistanceX", -1, 1, 53, 2, Q("2 in")),
    Sketcher.Constraint("DistanceY", 29, 3, -1, 1, Q("0.5 in")),
    Sketcher.Constraint("DistanceY", -1, 1, 11, 3, Q("0.375 in")),
    Sketcher.Constraint("DistanceX", -1, 1, 18, 3, Q("0.875 in")),
    Sketcher.Constraint("DistanceY", -1, 1, 18, 3, Q("0.125 in")),
    Sketcher.Constraint("DistanceY", 34, 2, -1, 1, Q("0.796875 in")),
    Sketcher.Constraint("DistanceY", 38, 2, -1, 1, Q("0.875 in")),
    Sketcher.Constraint("DistanceX", -1, 1, 42, 2, Q("0.125 in")),
    Sketcher.Constraint("DistanceY", -1, 1, 1, 3, Q("1.1375 in")),
    Sketcher.Constraint("Distance", 17, Q("6.674902 mm")),
    Sketcher.Constraint("Distance", 39, Q("7.057302 mm")),
    Sketcher.Constraint("DistanceY", 14, 1, 14, 2, Q("12.221038 mm")),
    Sketcher.Constraint("DistanceY", -1, 1, 3, 2, Q("30.092601 mm")),
    Sketcher.Constraint("DistanceY", -1, 1, 25, 2, Q("5.086801 mm")),
    Sketcher.Constraint("Distance", 0, Q("4.64256 mm")),
    Sketcher.Constraint("Distance", 10, Q("5.985689 mm")),
    Sketcher.Constraint("Distance", 32, Q("9.935931 mm")),
    Sketcher.Constraint("Distance", 41, Q("8.932751 mm")),
    Sketcher.Constraint("DistanceX", 38, 2, 38, 1, Q("17.334103 mm")),
    Sketcher.Constraint("DistanceX", 46, 1, 46, 2, Q("16.124796 mm")),
    Sketcher.Constraint("DistanceY", 3, 1, 3, 2, Q("10.150347 mm")),
    Sketcher.Constraint("DistanceX", -1, 1, 8, 2, Q("39.969711 mm")),
    Sketcher.Constraint("DistanceY", -1, 1, 9, 2, Q("17.665759 mm")),
    Sketcher.Constraint("DistanceY", -1, 1, 16, 2, Q("7.42102 mm")),
    Sketcher.Constraint("DistanceY", 28, 2, -1, 1, Q("7.969791 mm")),
    Sketcher.Constraint("DistanceY", 31, 2, -1, 1, Q("2.337261 mm")),
    Sketcher.Constraint("DistanceX", -1, 1, 32, 2, Q("33.801049 mm")),
    Sketcher.Constraint("DistanceY", 47, 2, -1, 1, Q("8.377169 mm")),
])
pocket1 = body.newObject("PartDesign::Pocket", "Pocket")
pocket1.Profile = sketch2
pocket1.Type = "ThroughAll"
pocket1.Reversed = True
doc.recompute()

fillet = body.newObject("PartDesign::Fillet", "Fillet")
fillet.Base = (pocket1, edges_at(pocket1, [
    (35.192, 1.587, -16.865),
    (28.046, 1.587, -22.225),
    (48.154, 1.587, -22.225),
    (41.008, 1.587, -16.865),
    (68.035, 1.587, -14.99),
    (73.025, 1.587, -19.98),
    (73.025, 1.587, -5.42),
    (68.035, 1.587, -10.41),
    (33.801, 1.587, -9.993),
    (17.414, 1.587, -10.806),
    (17.513, 1.587, -14.325),
    (25.4, 1.587, -20.241),
    (33.287, 1.587, -14.325),
    (15.368, 1.587, -8.377),
    (21.545, 1.587, -3.175),
    (5.42, 1.587, -3.175),
    (10.41, 1.587, -8.165),
    (42.409, 1.587, 26.202),
    (47.625, 1.587, 19.942),
    (47.625, 1.587, 30.093),
    (43.178, 1.587, 28.759),
    (47.625, 1.587, 15.396),
    (42.823, 1.587, 11.395),
    (42.724, 1.587, 7.421),
    (47.631, 1.587, 2.896),
    (28.569, 1.587, 2.896),
    (33.476, 1.587, 7.421),
    (33.377, 1.587, 11.395),
    (28.575, 1.587, 15.396),
    (8.165, 1.587, -10.41),
    (3.175, 1.587, -5.42),
    (8.165, 1.587, -14.99),
    (36.23, 1.587, 24.169),
    (30.811, 1.587, 17.666),
    (35.409, 1.587, 13.834),
    (40.791, 1.587, 13.834),
    (45.389, 1.587, 17.666),
    (39.97, 1.587, 24.169),
    (65.79, 1.587, -8.165),
    (70.78, 1.587, -3.175),
    (54.655, 1.587, -3.175),
    (60.832, 1.587, -8.377),
    (33.022, 1.587, 28.759),
    (28.575, 1.587, 30.093),
    (28.575, 1.587, 19.942),
    (33.791, 1.587, 26.202),
    (35.628, 1.587, 5.087),
    (36.248, 1.587, -7.97),
    (39.952, 1.587, -7.97),
    (40.572, 1.587, 5.087),
    (10.41, 1.587, -17.235),
    (5.42, 1.587, -22.225),
    (22.754, 1.587, -22.225),
    (15.608, 1.587, -16.865),
    (60.592, 1.587, -16.865),
    (53.446, 1.587, -22.225),
    (70.78, 1.587, -22.225),
    (65.79, 1.587, -17.235),
    (58.786, 1.587, -10.806),
    (42.399, 1.587, -9.993),
    (42.913, 1.587, -14.325),
    (50.8, 1.587, -20.241),
    (58.687, 1.587, -14.325),
    (3.175, 1.587, -19.98),
]))
fillet.Radius = Q("0.05 in")
doc.recompute()

fillet2 = body.newObject("PartDesign::Fillet", "Fillet001")
fillet2.Base = (fillet, edges_at(fillet, [
    (27.468, 1.587, -2.337),
    (29.853, 1.587, -0.239),
    (46.347, 1.587, -0.239),
    (48.732, 1.587, -2.337),
]))
fillet2.Radius = Q("0.125 in")

doc.recompute()
